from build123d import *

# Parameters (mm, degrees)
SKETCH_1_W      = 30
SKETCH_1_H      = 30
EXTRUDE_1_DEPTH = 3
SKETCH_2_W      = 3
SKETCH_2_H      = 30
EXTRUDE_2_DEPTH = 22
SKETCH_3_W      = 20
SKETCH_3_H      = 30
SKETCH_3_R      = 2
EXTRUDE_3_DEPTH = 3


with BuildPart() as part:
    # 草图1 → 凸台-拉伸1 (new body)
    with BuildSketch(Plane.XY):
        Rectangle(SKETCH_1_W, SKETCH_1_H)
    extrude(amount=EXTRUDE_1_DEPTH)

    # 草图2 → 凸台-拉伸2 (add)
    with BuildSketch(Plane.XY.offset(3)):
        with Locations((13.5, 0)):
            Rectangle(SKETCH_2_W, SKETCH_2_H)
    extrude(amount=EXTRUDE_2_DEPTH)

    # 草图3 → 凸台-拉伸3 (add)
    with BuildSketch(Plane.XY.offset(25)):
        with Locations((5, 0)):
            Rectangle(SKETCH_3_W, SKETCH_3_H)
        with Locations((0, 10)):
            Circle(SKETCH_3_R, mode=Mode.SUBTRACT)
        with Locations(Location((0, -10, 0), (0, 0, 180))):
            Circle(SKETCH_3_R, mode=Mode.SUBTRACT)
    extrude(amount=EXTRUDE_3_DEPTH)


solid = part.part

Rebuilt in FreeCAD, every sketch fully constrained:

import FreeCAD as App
import Part
import Sketcher
from FreeCAD import Vector


def add_polygon(sketch, points):
    """Adds a closed chain of lines whose ends are joined by coincident constraints."""
    first, n = sketch.GeometryCount, len(points)
    for a, b in zip(points, points[1:] + points[:1]):
        sketch.addGeometry(Part.LineSegment(App.Vector(*a, 0), App.Vector(*b, 0)), False)
    for i in range(n):
        sketch.addConstraint(Sketcher.Constraint("Coincident", first + i, 2, first + (i + 1) % n, 1))

doc = App.newDocument("Part")
body = doc.addObject("PartDesign::Body", "Body")

# Sketch on XY plane
sketch1 = body.newObject("Sketcher::SketchObject", "Sketch")
sketch1.AttachmentSupport = (doc.getObject("XY_Plane"), [""])
sketch1.MapMode = "FlatFace"
add_polygon(sketch1, [(-15, 15), (-15, -15), (15, -15), (15, 15)])  # lines 0-3
sketch1.addConstraint([
    Sketcher.Constraint("Vertical", 0),
    Sketcher.Constraint("Horizontal", 1),
    Sketcher.Constraint("Vertical", 2),
    Sketcher.Constraint("Horizontal", 3),
    Sketcher.Constraint("Symmetric", 0, 2, 2, 2, -1, 1),
    Sketcher.Constraint("Equal", 3, 0),
    Sketcher.Constraint("DistanceX", 1, 1, 1, 2, 30.0),
])
pad1 = body.newObject("PartDesign::Pad", "Pad")
pad1.Profile = sketch1
pad1.Length = 3

# Sketch on XY plane
sketch2 = body.newObject("Sketcher::SketchObject", "Sketch001")
sketch2.AttachmentSupport = (doc.getObject("XY_Plane"), [""])
sketch2.MapMode = "FlatFace"
sketch2.AttachmentOffset = App.Placement(Vector(0, 0, 3), App.Rotation())
add_polygon(sketch2, [(12, 15), (12, -15), (15, -15), (15, 15)])  # lines 0-3
sketch2.addConstraint([
    Sketcher.Constraint("Vertical", 0),
    Sketcher.Constraint("Horizontal", 1),
    Sketcher.Constraint("Vertical", 2),
    Sketcher.Constraint("Horizontal", 3),
    Sketcher.Constraint("DistanceX", 1, 1, 1, 2, 3.0),
    Sketcher.Constraint("DistanceY", 0, 2, 0, 1, 30.0),
    Sketcher.Constraint("DistanceX", -1, 1, 0, 2, 12.0),
    Sketcher.Constraint("DistanceY", 0, 2, -1, 1, 15.0),
])
pad2 = body.newObject("PartDesign::Pad", "Pad001")
pad2.Profile = sketch2
pad2.Length = 22

# Sketch on XY plane
sketch3 = body.newObject("Sketcher::SketchObject", "Sketch002")
sketch3.AttachmentSupport = (doc.getObject("XY_Plane"), [""])
sketch3.MapMode = "FlatFace"
sketch3.AttachmentOffset = App.Placement(Vector(0, 0, 25), App.Rotation())
add_polygon(sketch3, [(-5, 15), (-5, -15), (15, -15), (15, 15)])  # lines 0-3
sketch3.addGeometry(Part.Circle(Vector(0, -10, 0), Vector(0, 0, 1), 2), False)  # 4
sketch3.addGeometry(Part.Circle(Vector(0, 10, 0), Vector(0, 0, 1), 2), False)  # 5
sketch3.addConstraint([
    Sketcher.Constraint("Vertical", 0),
    Sketcher.Constraint("Horizontal", 1),
    Sketcher.Constraint("Vertical", 2),
    Sketcher.Constraint("Horizontal", 3),
    Sketcher.Constraint("Equal", 4, 5),
    Sketcher.Constraint("Symmetric", 4, 3, 5, 3, -1, 1),
    Sketcher.Constraint("PointOnObject", 4, 3, -2),
    Sketcher.Constraint("Diameter", 4, 4.0),
    Sketcher.Constraint("DistanceX", 1, 1, 1, 2, 20.0),
    Sketcher.Constraint("DistanceY", 0, 2, 0, 1, 30.0),
    Sketcher.Constraint("DistanceY", 4, 3, -1, 1, 10.0),
    Sketcher.Constraint("DistanceX", 0, 2, -1, 1, 5.0),
    Sketcher.Constraint("DistanceY", 0, 2, -1, 1, 15.0),
])
pad3 = body.newObject("PartDesign::Pad", "Pad002")
pad3.Profile = sketch3
pad3.Length = 3

doc.recompute()
